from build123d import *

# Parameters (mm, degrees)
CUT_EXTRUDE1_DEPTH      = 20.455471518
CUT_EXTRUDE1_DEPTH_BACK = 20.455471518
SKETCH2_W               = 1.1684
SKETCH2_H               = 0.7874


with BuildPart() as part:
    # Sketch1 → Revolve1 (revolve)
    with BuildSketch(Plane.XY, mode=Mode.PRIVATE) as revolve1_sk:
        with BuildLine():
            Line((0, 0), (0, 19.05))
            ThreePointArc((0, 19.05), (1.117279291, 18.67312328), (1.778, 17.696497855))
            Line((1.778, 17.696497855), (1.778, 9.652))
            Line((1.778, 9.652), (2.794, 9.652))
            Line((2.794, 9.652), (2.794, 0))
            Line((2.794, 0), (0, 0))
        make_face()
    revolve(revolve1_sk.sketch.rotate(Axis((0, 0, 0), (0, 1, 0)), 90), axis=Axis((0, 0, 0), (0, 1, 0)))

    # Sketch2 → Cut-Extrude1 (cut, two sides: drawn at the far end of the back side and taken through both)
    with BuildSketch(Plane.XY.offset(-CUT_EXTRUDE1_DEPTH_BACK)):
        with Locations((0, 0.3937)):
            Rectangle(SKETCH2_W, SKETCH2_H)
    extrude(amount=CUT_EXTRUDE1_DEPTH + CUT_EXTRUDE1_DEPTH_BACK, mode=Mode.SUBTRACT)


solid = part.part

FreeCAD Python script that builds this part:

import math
import FreeCAD as App
import Part
import Sketcher
from FreeCAD import Vector
Q = App.Units.Quantity

doc = App.newDocument("Part")
body = doc.addObject("PartDesign::Body", "Body")

sketch1 = body.newObject("Sketcher::SketchObject", "Sketch")
sketch1.AttachmentSupport = (doc.getObject("XY_Plane"), [""])
sketch1.MapMode = "FlatFace"
sketch1.addGeometry([
    Part.LineSegment(Vector(0, 19.1, 0), Vector(0, 0, 0)),
    Part.LineSegment(Vector(0, 0, 0), Vector(2.8, 0, 0)),
    Part.LineSegment(Vector(2.8, 0, 0), Vector(2.8, 9.7, 0)),
    Part.LineSegment(Vector(2.8, 9.7, 0), Vector(1.8, 9.7, 0)),
    Part.LineSegment(Vector(1.8, 9.7, 0), Vector(1.8, 17.7, 0)),
    Part.ArcOfCircle(Part.Circle(Vector(0, 17.2, 0), Vector(0, 0, 1), 1.8), math.radians(15), math.radians(90)),
], False)
sketch1.addConstraint([
    Sketcher.Constraint("Coincident", 0, 2, 1, 1),
    Sketcher.Constraint("Coincident", 1, 2, 2, 1),
    Sketcher.Constraint("Coincident", 2, 2, 3, 1),
    Sketcher.Constraint("Coincident", 3, 2, 4, 1),
    Sketcher.Constraint("Coincident", 4, 2, 5, 1),
    Sketcher.Constraint("Coincident", 5, 2, 0, 1),
    Sketcher.Constraint("Vertical", 0),
    Sketcher.Constraint("Horizontal", 1),
    Sketcher.Constraint("Vertical", 2),
    Sketcher.Constraint("Horizontal", 3),
    Sketcher.Constraint("Vertical", 4),
    Sketcher.Constraint("Coincident", 0, 2, -1, 1),
    Sketcher.Constraint("PointOnObject", 5, 3, -2),
    Sketcher.Constraint("DistanceX", 1, 1, 1, 2, Q("0.11 in")),
    Sketcher.Constraint("DistanceX", 3, 2, 3, 1, Q("0.04 in")),
    Sketcher.Constraint("DistanceY", 0, 2, 0, 1, Q("0.75 in")),
    Sketcher.Constraint("DistanceY", 2, 1, 2, 2, Q("0.38 in")),
    Sketcher.Constraint("Radius", 5, 1.844567),
])
revolution = body.newObject("PartDesign::Revolution", "Revolution")
revolution.Profile = sketch1
revolution.ReferenceAxis = (sketch1, ["V_Axis"])
revolution.Angle = 360

sketch2 = body.newObject("Sketcher::SketchObject", "Sketch001")
sketch2.AttachmentSupport = (doc.getObject("XY_Plane"), [""])
sketch2.MapMode = "FlatFace"
sketch2.addGeometry([
    Part.LineSegment(Vector(-0.6, 0.8, 0), Vector(-0.6, 0, 0)),
    Part.LineSegment(Vector(-0.6, 0, 0), Vector(0.6, 0, 0)),
    Part.LineSegment(Vector(0.6, 0, 0), Vector(0.6, 0.8, 0)),
    Part.LineSegment(Vector(0.6, 0.8, 0), Vector(-0.6, 0.8, 0)),
], False)
sketch2.addConstraint([
    Sketcher.Constraint("Coincident", 0, 2, 1, 1),
    Sketcher.Constraint("Coincident", 1, 2, 2, 1),
    Sketcher.Constraint("Coincident", 2, 2, 3, 1),
    Sketcher.Constraint("Coincident", 3, 2, 0, 1),
    Sketcher.Constraint("Vertical", 0),
    Sketcher.Constraint("Horizontal", 1),
    Sketcher.Constraint("Vertical", 2),
    Sketcher.Constraint("Horizontal", 3),
    Sketcher.Constraint("Symmetric", 0, 2, 1, 2, -1, 1),
    Sketcher.Constraint("DistanceX", 1, 1, 1, 2, Q("0.046 in")),
    Sketcher.Constraint("DistanceY", 0, 2, 0, 1, Q("0.031 in")),
])
pocket1 = body.newObject("PartDesign::Pocket", "Pocket")
pocket1.Profile = sketch2
pocket1.Type = "ThroughAll"
pocket1.Midplane = True

doc.recompute()
